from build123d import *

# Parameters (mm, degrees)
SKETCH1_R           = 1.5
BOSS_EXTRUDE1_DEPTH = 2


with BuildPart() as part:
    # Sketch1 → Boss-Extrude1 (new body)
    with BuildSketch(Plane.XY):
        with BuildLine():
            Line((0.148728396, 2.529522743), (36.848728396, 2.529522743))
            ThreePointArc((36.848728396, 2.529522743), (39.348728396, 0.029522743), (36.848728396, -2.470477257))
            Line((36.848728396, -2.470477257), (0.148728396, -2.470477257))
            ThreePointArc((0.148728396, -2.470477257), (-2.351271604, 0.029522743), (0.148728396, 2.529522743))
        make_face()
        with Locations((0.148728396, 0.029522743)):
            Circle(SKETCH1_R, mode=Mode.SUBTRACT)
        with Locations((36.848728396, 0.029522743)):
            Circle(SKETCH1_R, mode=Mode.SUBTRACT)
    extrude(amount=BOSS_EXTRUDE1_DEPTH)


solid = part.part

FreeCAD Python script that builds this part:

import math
import FreeCAD as App
import Part
import Sketcher

doc = App.newDocument("Part")
params = doc.addObject("Spreadsheet::Sheet", "Params")
for row, (alias, value) in enumerate([
    ("sketch1_diameter", "3 mm"),
    ("sketch1_radius", "2.5 mm"),
    ("sketch1_width", "36.7 mm"),
    ("pad1_length", "2 mm"),
], start=1):
    params.set(f"A{row}", alias)
    params.set(f"B{row}", "=" + value)
    params.setAlias(f"B{row}", alias)

body = doc.addObject("PartDesign::Body", "Body")

# Sketch on XY plane
sketch1 = doc.addObject("Sketcher::SketchObject", "Sketch")
body.addObject(sketch1)
sketch1.AttachmentSupport = (doc.XY_Plane, [""])
sketch1.MapMode = "FlatFace"
sketch1.addGeometry([
    Part.LineSegment(App.Vector(36.848728, 2.529523, 0), App.Vector(0.148728, 2.529523, 0)),  # 0
    Part.ArcOfCircle(Part.Circle(App.Vector(0.148728, 0.029523, 0), App.Vector(0, 0, 1), 2.5), math.radians(90), math.radians(270)),  # 1
    Part.LineSegment(App.Vector(0.148728, -2.470477, 0), App.Vector(36.848728, -2.470477, 0)),  # 2
    Part.ArcOfCircle(Part.Circle(App.Vector(36.848728, 0.029523, 0), App.Vector(0, 0, 1), 2.5), math.radians(-90), math.radians(90)),  # 3
    Part.Circle(App.Vector(36.848728, 0.029523, 0), App.Vector(0, 0, 1), 1.5),  # 4
    Part.Circle(App.Vector(0.148728, 0.029523, 0), App.Vector(0, 0, 1), 1.5),  # 5
], False)
sketch1.addConstraint([
    Sketcher.Constraint("Tangent", 0, 2, 1, 1),
    Sketcher.Constraint("Tangent", 1, 2, 2, 1),
    Sketcher.Constraint("Tangent", 2, 2, 3, 1),
    Sketcher.Constraint("Tangent", 3, 2, 0, 1),
    Sketcher.Constraint("Horizontal", 0),
    Sketcher.Constraint("Horizontal", 2),
    Sketcher.Constraint("Coincident", 4, 3, 3, 3),
    Sketcher.Constraint("Coincident", 5, 3, 1, 3),
    Sketcher.Constraint("Equal", 4, 5),
    Sketcher.Constraint("Diameter", 4, 3.0),
    Sketcher.Constraint("Radius", 1, 2.5),
    Sketcher.Constraint("DistanceX", 0, 2, 0, 1, 36.7),
    Sketcher.Constraint("DistanceX", -1, 1, 1, 3, 0.148728),
    Sketcher.Constraint("DistanceY", -1, 1, 1, 3, 0.029523),
])
sketch1.setExpression("Constraints[9]", "Params.sketch1_diameter")
sketch1.setExpression("Constraints[10]", "Params.sketch1_radius")
sketch1.setExpression("Constraints[11]", "Params.sketch1_width")
pad1 = doc.addObject("PartDesign::Pad", "Pad")
body.addObject(pad1)
pad1.Profile = sketch1
pad1.setExpression("Length", "Params.pad1_length")

doc.recompute()
